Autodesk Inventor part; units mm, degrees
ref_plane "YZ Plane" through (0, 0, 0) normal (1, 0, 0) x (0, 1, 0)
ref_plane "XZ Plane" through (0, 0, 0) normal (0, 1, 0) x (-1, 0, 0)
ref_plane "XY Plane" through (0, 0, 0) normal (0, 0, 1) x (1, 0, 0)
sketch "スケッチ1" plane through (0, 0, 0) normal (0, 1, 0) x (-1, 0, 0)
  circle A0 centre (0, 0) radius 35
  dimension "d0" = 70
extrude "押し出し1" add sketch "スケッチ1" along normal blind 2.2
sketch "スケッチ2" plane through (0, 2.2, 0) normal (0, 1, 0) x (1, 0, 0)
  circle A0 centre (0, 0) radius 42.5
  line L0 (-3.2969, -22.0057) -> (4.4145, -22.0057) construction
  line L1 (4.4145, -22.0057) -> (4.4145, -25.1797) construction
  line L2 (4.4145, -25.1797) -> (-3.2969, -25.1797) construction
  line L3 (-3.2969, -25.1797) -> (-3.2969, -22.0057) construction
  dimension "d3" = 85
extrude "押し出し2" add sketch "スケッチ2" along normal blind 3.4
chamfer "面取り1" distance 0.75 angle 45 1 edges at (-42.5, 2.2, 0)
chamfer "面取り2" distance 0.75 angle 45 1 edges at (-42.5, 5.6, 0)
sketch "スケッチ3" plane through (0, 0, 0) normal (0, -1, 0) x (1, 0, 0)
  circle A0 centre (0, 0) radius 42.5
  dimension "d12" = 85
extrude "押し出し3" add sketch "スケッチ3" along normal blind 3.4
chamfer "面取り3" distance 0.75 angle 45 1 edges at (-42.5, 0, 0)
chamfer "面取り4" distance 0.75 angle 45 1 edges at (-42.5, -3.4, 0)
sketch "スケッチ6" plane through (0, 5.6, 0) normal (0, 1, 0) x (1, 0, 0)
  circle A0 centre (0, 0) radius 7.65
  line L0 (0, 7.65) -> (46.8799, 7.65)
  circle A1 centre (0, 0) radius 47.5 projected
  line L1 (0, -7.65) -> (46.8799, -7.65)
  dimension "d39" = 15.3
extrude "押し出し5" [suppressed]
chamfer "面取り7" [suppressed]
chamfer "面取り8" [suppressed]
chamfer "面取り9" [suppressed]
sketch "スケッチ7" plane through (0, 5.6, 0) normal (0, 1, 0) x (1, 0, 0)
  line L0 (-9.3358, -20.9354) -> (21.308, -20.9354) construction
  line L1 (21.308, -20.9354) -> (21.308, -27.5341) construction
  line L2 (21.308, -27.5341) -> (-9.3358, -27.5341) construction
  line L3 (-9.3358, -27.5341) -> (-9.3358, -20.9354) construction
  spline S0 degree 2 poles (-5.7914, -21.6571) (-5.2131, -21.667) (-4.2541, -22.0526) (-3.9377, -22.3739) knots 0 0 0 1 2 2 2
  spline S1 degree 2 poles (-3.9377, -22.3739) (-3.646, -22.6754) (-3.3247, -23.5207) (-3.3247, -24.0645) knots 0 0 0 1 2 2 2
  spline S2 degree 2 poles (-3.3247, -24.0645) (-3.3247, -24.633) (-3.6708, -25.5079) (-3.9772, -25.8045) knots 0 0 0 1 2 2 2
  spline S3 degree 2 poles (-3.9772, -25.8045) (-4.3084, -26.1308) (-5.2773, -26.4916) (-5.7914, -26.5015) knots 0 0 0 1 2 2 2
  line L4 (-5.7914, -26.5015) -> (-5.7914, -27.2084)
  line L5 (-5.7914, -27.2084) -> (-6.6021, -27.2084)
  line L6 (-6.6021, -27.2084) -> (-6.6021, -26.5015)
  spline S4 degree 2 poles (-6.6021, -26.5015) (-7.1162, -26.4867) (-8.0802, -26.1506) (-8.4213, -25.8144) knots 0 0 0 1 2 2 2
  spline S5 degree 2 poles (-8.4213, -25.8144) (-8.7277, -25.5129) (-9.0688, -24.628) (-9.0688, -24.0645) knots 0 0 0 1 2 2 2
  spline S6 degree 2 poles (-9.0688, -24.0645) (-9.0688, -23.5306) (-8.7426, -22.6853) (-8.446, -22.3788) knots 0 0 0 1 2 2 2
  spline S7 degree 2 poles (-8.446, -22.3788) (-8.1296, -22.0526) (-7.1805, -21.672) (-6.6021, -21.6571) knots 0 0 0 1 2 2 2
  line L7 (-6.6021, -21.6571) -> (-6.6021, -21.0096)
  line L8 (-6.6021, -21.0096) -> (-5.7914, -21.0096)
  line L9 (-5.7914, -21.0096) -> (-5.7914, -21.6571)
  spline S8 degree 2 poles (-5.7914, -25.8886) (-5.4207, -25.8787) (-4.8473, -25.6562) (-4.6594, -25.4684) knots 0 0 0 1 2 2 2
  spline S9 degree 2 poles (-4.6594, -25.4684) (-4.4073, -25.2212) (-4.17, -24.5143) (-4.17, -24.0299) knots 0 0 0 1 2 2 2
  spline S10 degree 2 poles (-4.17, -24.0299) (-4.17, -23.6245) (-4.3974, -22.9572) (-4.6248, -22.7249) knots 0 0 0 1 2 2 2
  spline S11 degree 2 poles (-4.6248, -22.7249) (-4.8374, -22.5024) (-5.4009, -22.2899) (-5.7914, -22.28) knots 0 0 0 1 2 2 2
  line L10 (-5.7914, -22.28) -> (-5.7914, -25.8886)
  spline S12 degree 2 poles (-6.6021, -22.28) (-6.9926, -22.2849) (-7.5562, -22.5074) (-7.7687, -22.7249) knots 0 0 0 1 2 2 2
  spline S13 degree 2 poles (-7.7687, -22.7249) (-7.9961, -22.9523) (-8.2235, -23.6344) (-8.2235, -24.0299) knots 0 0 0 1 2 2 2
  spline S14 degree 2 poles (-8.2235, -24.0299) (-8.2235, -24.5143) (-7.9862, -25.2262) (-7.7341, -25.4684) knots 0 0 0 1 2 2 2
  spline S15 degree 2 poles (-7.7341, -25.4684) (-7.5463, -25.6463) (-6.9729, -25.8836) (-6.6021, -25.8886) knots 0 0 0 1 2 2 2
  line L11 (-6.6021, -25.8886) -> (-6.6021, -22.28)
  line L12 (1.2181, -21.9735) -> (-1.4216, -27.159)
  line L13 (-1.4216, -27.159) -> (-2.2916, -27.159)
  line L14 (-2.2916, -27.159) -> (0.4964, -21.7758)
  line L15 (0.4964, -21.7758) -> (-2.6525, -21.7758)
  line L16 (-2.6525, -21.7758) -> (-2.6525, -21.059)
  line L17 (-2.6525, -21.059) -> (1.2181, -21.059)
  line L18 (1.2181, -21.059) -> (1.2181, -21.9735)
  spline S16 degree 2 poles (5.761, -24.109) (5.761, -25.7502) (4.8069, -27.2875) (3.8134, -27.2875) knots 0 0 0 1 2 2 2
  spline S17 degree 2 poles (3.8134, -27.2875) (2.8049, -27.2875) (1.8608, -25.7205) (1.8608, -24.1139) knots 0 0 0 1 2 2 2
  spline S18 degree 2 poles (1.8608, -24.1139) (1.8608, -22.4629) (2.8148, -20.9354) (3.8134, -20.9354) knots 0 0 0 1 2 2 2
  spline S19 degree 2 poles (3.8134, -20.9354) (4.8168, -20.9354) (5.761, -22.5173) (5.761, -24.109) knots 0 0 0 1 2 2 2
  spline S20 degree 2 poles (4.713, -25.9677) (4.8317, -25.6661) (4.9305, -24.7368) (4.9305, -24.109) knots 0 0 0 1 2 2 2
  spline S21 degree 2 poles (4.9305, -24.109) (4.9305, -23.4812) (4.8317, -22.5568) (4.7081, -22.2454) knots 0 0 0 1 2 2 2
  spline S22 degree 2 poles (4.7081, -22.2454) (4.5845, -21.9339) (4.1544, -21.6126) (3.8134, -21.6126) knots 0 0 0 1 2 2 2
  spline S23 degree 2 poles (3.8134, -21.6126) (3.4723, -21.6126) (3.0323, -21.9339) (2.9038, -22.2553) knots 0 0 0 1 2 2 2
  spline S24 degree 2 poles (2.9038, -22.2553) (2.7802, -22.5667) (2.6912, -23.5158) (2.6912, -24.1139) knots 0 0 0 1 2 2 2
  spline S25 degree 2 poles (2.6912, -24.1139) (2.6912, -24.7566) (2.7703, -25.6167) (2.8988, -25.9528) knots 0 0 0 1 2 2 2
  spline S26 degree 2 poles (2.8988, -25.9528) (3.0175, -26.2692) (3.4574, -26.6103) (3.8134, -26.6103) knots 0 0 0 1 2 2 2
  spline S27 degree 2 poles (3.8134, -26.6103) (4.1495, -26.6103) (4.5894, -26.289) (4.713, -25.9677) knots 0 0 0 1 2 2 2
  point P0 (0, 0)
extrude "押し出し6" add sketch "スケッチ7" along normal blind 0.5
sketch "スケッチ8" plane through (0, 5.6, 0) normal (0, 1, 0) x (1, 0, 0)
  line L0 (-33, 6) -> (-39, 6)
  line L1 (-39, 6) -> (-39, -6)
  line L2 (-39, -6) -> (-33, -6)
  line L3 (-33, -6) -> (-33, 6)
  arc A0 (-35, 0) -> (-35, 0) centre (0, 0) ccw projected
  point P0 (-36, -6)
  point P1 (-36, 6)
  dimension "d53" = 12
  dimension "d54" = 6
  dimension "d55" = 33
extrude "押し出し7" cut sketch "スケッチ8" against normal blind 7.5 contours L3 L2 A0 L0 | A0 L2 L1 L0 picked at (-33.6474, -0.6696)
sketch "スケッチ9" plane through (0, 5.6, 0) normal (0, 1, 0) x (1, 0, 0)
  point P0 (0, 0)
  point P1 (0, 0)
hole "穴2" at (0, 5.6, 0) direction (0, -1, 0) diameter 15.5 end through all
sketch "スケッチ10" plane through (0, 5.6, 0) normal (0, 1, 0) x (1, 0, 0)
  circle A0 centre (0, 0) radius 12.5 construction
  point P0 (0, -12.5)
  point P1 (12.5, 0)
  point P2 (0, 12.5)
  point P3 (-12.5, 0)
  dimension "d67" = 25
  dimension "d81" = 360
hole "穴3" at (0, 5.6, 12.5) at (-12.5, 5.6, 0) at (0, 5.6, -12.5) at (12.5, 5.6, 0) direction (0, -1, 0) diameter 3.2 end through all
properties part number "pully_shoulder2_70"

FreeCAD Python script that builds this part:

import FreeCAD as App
import Part
import Sketcher

V = App.Vector
Q = App.Units.Quantity


def edges_at(feature, points):
    """Names of the edges that pass closest to the given points."""
    edges = feature.Shape.Edges
    near = lambda p: min(range(len(edges)), key=lambda i: edges[i].distToShape(Part.Vertex(*p))[0])
    return sorted({f"Edge{near(p) + 1}" for p in points})


def add_polygon(sketch, points):
    """Adds a closed chain of lines whose ends are joined by coincident constraints."""
    first, n = sketch.GeometryCount, len(points)
    for a, b in zip(points, points[1:] + points[:1]):
        sketch.addGeometry(Part.LineSegment(App.Vector(*a, 0), App.Vector(*b, 0)), False)
    for i in range(n):
        sketch.addConstraint(Sketcher.Constraint("Coincident", first + i, 2, first + (i + 1) % n, 1))

doc = App.newDocument("Part")
body = doc.addObject("PartDesign::Body", "Body")

# Sketch on XZ plane
sketch1 = body.newObject("Sketcher::SketchObject", "Sketch")
sketch1.AttachmentSupport = (doc.getObject("XZ_Plane"), [""])
sketch1.MapMode = "FlatFace"
sketch1.addGeometry(Part.Circle(V(0, 0, 0), V(0, 0, 1), 35), False)
sketch1.addConstraint([
    Sketcher.Constraint("Coincident", 0, 3, -1, 1),
    Sketcher.Constraint("Diameter", 0, Q("70 mm")),
])
pad1 = body.newObject("PartDesign::Pad", "Pad")
pad1.Profile = sketch1
pad1.Length = 2.2
pad1.Reversed = True

# Sketch on XZ plane
sketch2 = body.newObject("Sketcher::SketchObject", "Sketch001")
sketch2.AttachmentSupport = (doc.getObject("XZ_Plane"), [""])
sketch2.MapMode = "FlatFace"
sketch2.AttachmentOffset = App.Placement(V(0, 0, -2.2), App.Rotation())
sketch2.addGeometry(Part.Circle(V(0, 0, 0), V(0, 0, 1), 42), False)
sketch2.addConstraint([
    Sketcher.Constraint("Coincident", 0, 3, -1, 1),
    Sketcher.Constraint("Diameter", 0, Q("85 mm")),
])
pad2 = body.newObject("PartDesign::Pad", "Pad001")
pad2.Profile = sketch2
pad2.Length = 3.4
pad2.Reversed = True
doc.recompute()

chamfer = body.newObject("PartDesign::Chamfer", "Chamfer")
chamfer.Base = (pad2, edges_at(pad2, [(-42.5, 2.2, 0)]))
chamfer.Size = 0.75
doc.recompute()

chamfer2 = body.newObject("PartDesign::Chamfer", "Chamfer001")
chamfer2.Base = (chamfer, edges_at(chamfer, [(-42.5, 5.6, 0)]))
chamfer2.Size = 0.75

# Sketch on XZ plane
sketch3 = body.newObject("Sketcher::SketchObject", "Sketch002")
sketch3.AttachmentSupport = (doc.getObject("XZ_Plane"), [""])
sketch3.MapMode = "FlatFace"
sketch3.addGeometry(Part.Circle(V(0, 0, 0), V(0, 0, 1), 42), False)
sketch3.addConstraint([
    Sketcher.Constraint("Coincident", 0, 3, -1, 1),
    Sketcher.Constraint("Diameter", 0, Q("85 mm")),
])
pad3 = body.newObject("PartDesign::Pad", "Pad002")
pad3.Profile = sketch3
pad3.Length = 3.4
doc.recompute()

chamfer3 = body.newObject("PartDesign::Chamfer", "Chamfer002")
chamfer3.Base = (pad3, edges_at(pad3, [(-42.5, 0, 0)]))
chamfer3.Size = 0.75
doc.recompute()

chamfer4 = body.newObject("PartDesign::Chamfer", "Chamfer003")
chamfer4.Base = (chamfer3, edges_at(chamfer3, [(-42.5, -3.4, 0)]))
chamfer4.Size = 0.75

# Sketch on XZ plane
sketch4 = body.newObject("Sketcher::SketchObject", "Sketch003")
sketch4.AttachmentSupport = (doc.getObject("XZ_Plane"), [""])
sketch4.MapMode = "FlatFace"
sketch4.AttachmentOffset = App.Placement(V(0, 0, -5.6), App.Rotation())
sketch4.addGeometry(Part.BSplineCurve([V(-5.7914, 21.6571, 0), V(-5.2131, 21.667, 0), V(-4.2541, 22.0526, 0), V(-3.9377, 22.3739, 0)], [3, 1, 3], [0, 1, 2], False, 2, [1, 1, 1, 1], False), False)  # 0
sketch4.addGeometry(Part.LineSegment(V(-5.7914, 21.6571, 0), V(-5.7914, 21.0096, 0)), False)  # 1
sketch4.addGeometry(Part.LineSegment(V(-5.7914, 21.0096, 0), V(-6.6021, 21.0096, 0)), False)  # 2
sketch4.addGeometry(Part.LineSegment(V(-6.6021, 21.0096, 0), V(-6.6021, 21.6571, 0)), False)  # 3
sketch4.addGeometry(Part.BSplineCurve([V(-8.446, 22.3788, 0), V(-8.1296, 22.0526, 0), V(-7.1805, 21.672, 0), V(-6.6021, 21.6571, 0)], [3, 1, 3], [0, 1, 2], False, 2, [1, 1, 1, 1], False), False)  # 4
sketch4.addGeometry(Part.BSplineCurve([V(-9.0688, 24.0645, 0), V(-9.0688, 23.5306, 0), V(-8.7426, 22.6853, 0), V(-8.446, 22.3788, 0)], [3, 1, 3], [0, 1, 2], False, 2, [1, 1, 1, 1], False), False)  # 5
sketch4.addGeometry(Part.BSplineCurve([V(-8.4213, 25.8144, 0), V(-8.7277, 25.5129, 0), V(-9.0688, 24.628, 0), V(-9.0688, 24.0645, 0)], [3, 1, 3], [0, 1, 2], False, 2, [1, 1, 1, 1], False), False)  # 6
sketch4.addGeometry(Part.BSplineCurve([V(-6.6021, 26.5015, 0), V(-7.1162, 26.4867, 0), V(-8.0802, 26.1506, 0), V(-8.4213, 25.8144, 0)], [3, 1, 3], [0, 1, 2], False, 2, [1, 1, 1, 1], False), False)  # 7
sketch4.addGeometry(Part.LineSegment(V(-6.6021, 26.5015, 0), V(-6.6021, 27.2084, 0)), False)  # 8
sketch4.addGeometry(Part.LineSegment(V(-6.6021, 27.2084, 0), V(-5.7914, 27.2084, 0)), False)  # 9
sketch4.addGeometry(Part.LineSegment(V(-5.7914, 27.2084, 0), V(-5.7914, 26.5015, 0)), False)  # 10
sketch4.addGeometry(Part.BSplineCurve([V(-3.9772, 25.8045, 0), V(-4.3084, 26.1308, 0), V(-5.2773, 26.4916, 0), V(-5.7914, 26.5015, 0)], [3, 1, 3], [0, 1, 2], False, 2, [1, 1, 1, 1], False), False)  # 11
sketch4.addGeometry(Part.BSplineCurve([V(-3.3247, 24.0645, 0), V(-3.3247, 24.633, 0), V(-3.6708, 25.5079, 0), V(-3.9772, 25.8045, 0)], [3, 1, 3], [0, 1, 2], False, 2, [1, 1, 1, 1], False), False)  # 12
sketch4.addGeometry(Part.BSplineCurve([V(-3.9377, 22.3739, 0), V(-3.646, 22.6754, 0), V(-3.3247, 23.5207, 0), V(-3.3247, 24.0645, 0)], [3, 1, 3], [0, 1, 2], False, 2, [1, 1, 1, 1], False), False)  # 13
sketch4.addGeometry(Part.BSplineCurve([V(-6.6021, 22.28, 0), V(-6.9926, 22.2849, 0), V(-7.5562, 22.5074, 0), V(-7.7687, 22.7249, 0)], [3, 1, 3], [0, 1, 2], False, 2, [1, 1, 1, 1], False), False)  # 14
sketch4.addGeometry(Part.LineSegment(V(-6.6021, 22.28, 0), V(-6.6021, 25.8886, 0)), False)  # 15
sketch4.addGeometry(Part.BSplineCurve([V(-7.7341, 25.4684, 0), V(-7.5463, 25.6463, 0), V(-6.9729, 25.8836, 0), V(-6.6021, 25.8886, 0)], [3, 1, 3], [0, 1, 2], False, 2, [1, 1, 1, 1], False), False)  # 16
sketch4.addGeometry(Part.BSplineCurve([V(-8.2235, 24.0299, 0), V(-8.2235, 24.5143, 0), V(-7.9862, 25.2262, 0), V(-7.7341, 25.4684, 0)], [3, 1, 3], [0, 1, 2], False, 2, [1, 1, 1, 1], False), False)  # 17
sketch4.addGeometry(Part.BSplineCurve([V(-7.7687, 22.7249, 0), V(-7.9961, 22.9523, 0), V(-8.2235, 23.6344, 0), V(-8.2235, 24.0299, 0)], [3, 1, 3], [0, 1, 2], False, 2, [1, 1, 1, 1], False), False)  # 18
sketch4.addGeometry(Part.BSplineCurve([V(-5.7914, 25.8886, 0), V(-5.4207, 25.8787, 0), V(-4.8473, 25.6562, 0), V(-4.6594, 25.4684, 0)], [3, 1, 3], [0, 1, 2], False, 2, [1, 1, 1, 1], False), False)  # 19
sketch4.addGeometry(Part.LineSegment(V(-5.7914, 25.8886, 0), V(-5.7914, 22.28, 0)), False)  # 20
sketch4.addGeometry(Part.BSplineCurve([V(-4.6248, 22.7249, 0), V(-4.8374, 22.5024, 0), V(-5.4009, 22.2899, 0), V(-5.7914, 22.28, 0)], [3, 1, 3], [0, 1, 2], False, 2, [1, 1, 1, 1], False), False)  # 21
sketch4.addGeometry(Part.BSplineCurve([V(-4.17, 24.0299, 0), V(-4.17, 23.6245, 0), V(-4.3974, 22.9572, 0), V(-4.6248, 22.7249, 0)], [3, 1, 3], [0, 1, 2], False, 2, [1, 1, 1, 1], False), False)  # 22
sketch4.addGeometry(Part.BSplineCurve([V(-4.6594, 25.4684, 0), V(-4.4073, 25.2212, 0), V(-4.17, 24.5143, 0), V(-4.17, 24.0299, 0)], [3, 1, 3], [0, 1, 2], False, 2, [1, 1, 1, 1], False), False)  # 23
add_polygon(sketch4, [(-1.4216, 27.159), (1.2181, 21.9735), (1.2181, 21.059), (-2.6525, 21.059), (-2.6525, 21.7758), (0.4964, 21.7758), (-2.2916, 27.159)])  # lines 24-30
sketch4.addGeometry(Part.BSplineCurve([V(5.761, 24.109, 0), V(5.761, 25.7502, 0), V(4.8069, 27.2875, 0), V(3.8134, 27.2875, 0)], [3, 1, 3], [0, 1, 2], False, 2, [1, 1, 1, 1], False), False)  # 31
sketch4.addGeometry(Part.BSplineCurve([V(3.8134, 20.9354, 0), V(4.8168, 20.9354, 0), V(5.761, 22.5173, 0), V(5.761, 24.109, 0)], [3, 1, 3], [0, 1, 2], False, 2, [1, 1, 1, 1], False), False)  # 32
sketch4.addGeometry(Part.BSplineCurve([V(1.8608, 24.1139, 0), V(1.8608, 22.4629, 0), V(2.8148, 20.9354, 0), V(3.8134, 20.9354, 0)], [3, 1, 3], [0, 1, 2], False, 2, [1, 1, 1, 1], False), False)  # 33
sketch4.addGeometry(Part.BSplineCurve([V(3.8134, 27.2875, 0), V(2.8049, 27.2875, 0), V(1.8608, 25.7205, 0), V(1.8608, 24.1139, 0)], [3, 1, 3], [0, 1, 2], False, 2, [1, 1, 1, 1], False), False)  # 34
sketch4.addGeometry(Part.BSplineCurve([V(4.713, 25.9677, 0), V(4.8317, 25.6661, 0), V(4.9305, 24.7368, 0), V(4.9305, 24.109, 0)], [3, 1, 3], [0, 1, 2], False, 2, [1, 1, 1, 1], False), False)  # 35
sketch4.addGeometry(Part.BSplineCurve([V(3.8134, 26.6103, 0), V(4.1495, 26.6103, 0), V(4.5894, 26.289, 0), V(4.713, 25.9677, 0)], [3, 1, 3], [0, 1, 2], False, 2, [1, 1, 1, 1], False), False)  # 36
sketch4.addGeometry(Part.BSplineCurve([V(2.8988, 25.9528, 0), V(3.0175, 26.2692, 0), V(3.4574, 26.6103, 0), V(3.8134, 26.6103, 0)], [3, 1, 3], [0, 1, 2], False, 2, [1, 1, 1, 1], False), False)  # 37
sketch4.addGeometry(Part.BSplineCurve([V(2.6912, 24.1139, 0), V(2.6912, 24.7566, 0), V(2.7703, 25.6167, 0), V(2.8988, 25.9528, 0)], [3, 1, 3], [0, 1, 2], False, 2, [1, 1, 1, 1], False), False)  # 38
sketch4.addGeometry(Part.BSplineCurve([V(2.9038, 22.2553, 0), V(2.7802, 22.5667, 0), V(2.6912, 23.5158, 0), V(2.6912, 24.1139, 0)], [3, 1, 3], [0, 1, 2], False, 2, [1, 1, 1, 1], False), False)  # 39
sketch4.addGeometry(Part.BSplineCurve([V(3.8134, 21.6126, 0), V(3.4723, 21.6126, 0), V(3.0323, 21.9339, 0), V(2.9038, 22.2553, 0)], [3, 1, 3], [0, 1, 2], False, 2, [1, 1, 1, 1], False), False)  # 40
sketch4.addGeometry(Part.BSplineCurve([V(4.7081, 22.2454, 0), V(4.5845, 21.9339, 0), V(4.1544, 21.6126, 0), V(3.8134, 21.6126, 0)], [3, 1, 3], [0, 1, 2], False, 2, [1, 1, 1, 1], False), False)  # 41
sketch4.addGeometry(Part.BSplineCurve([V(4.9305, 24.109, 0), V(4.9305, 23.4812, 0), V(4.8317, 22.5568, 0), V(4.7081, 22.2454, 0)], [3, 1, 3], [0, 1, 2], False, 2, [1, 1, 1, 1], False), False)  # 42
sketch4.addConstraint([
    Sketcher.Constraint("Block", 0),
    Sketcher.Constraint("Block", 4),
    Sketcher.Constraint("Block", 5),
    Sketcher.Constraint("Block", 6),
    Sketcher.Constraint("Block", 7),
    Sketcher.Constraint("Block", 11),
    Sketcher.Constraint("Block", 12),
    Sketcher.Constraint("Block", 13),
    Sketcher.Constraint("Block", 14),
    Sketcher.Constraint("Block", 16),
    Sketcher.Constraint("Block", 17),
    Sketcher.Constraint("Block", 18),
    Sketcher.Constraint("Block", 19),
    Sketcher.Constraint("Block", 21),
    Sketcher.Constraint("Block", 22),
    Sketcher.Constraint("Block", 23),
    Sketcher.Constraint("Block", 31),
    Sketcher.Constraint("Block", 32),
    Sketcher.Constraint("Block", 33),
    Sketcher.Constraint("Block", 34),
    Sketcher.Constraint("Block", 35),
    Sketcher.Constraint("Block", 36),
    Sketcher.Constraint("Block", 37),
    Sketcher.Constraint("Block", 38),
    Sketcher.Constraint("Block", 39),
    Sketcher.Constraint("Block", 40),
    Sketcher.Constraint("Block", 41),
    Sketcher.Constraint("Block", 42),
    Sketcher.Constraint("Coincident", 0, 1, 1, 1),
    Sketcher.Constraint("Coincident", 1, 2, 2, 1),
    Sketcher.Constraint("Coincident", 2, 2, 3, 1),
    Sketcher.Constraint("Coincident", 3, 2, 4, 2),
    Sketcher.Constraint("Coincident", 7, 1, 8, 1),
    Sketcher.Constraint("Coincident", 8, 2, 9, 1),
    Sketcher.Constraint("Coincident", 9, 2, 10, 1),
    Sketcher.Constraint("Coincident", 10, 2, 11, 2),
    Sketcher.Constraint("Coincident", 14, 1, 15, 1),
    Sketcher.Constraint("Coincident", 15, 2, 16, 2),
    Sketcher.Constraint("Coincident", 19, 1, 20, 1),
    Sketcher.Constraint("Coincident", 20, 2, 21, 2),
    Sketcher.Constraint("Vertical", 1),
    Sketcher.Constraint("Horizontal", 2),
    Sketcher.Constraint("Vertical", 3),
    Sketcher.Constraint("Vertical", 8),
    Sketcher.Constraint("Horizontal", 9),
    Sketcher.Constraint("Vertical", 10),
    Sketcher.Constraint("Vertical", 25),
    Sketcher.Constraint("Horizontal", 26),
    Sketcher.Constraint("Vertical", 27),
    Sketcher.Constraint("Horizontal", 28),
    Sketcher.Constraint("Horizontal", 30),
    Sketcher.Constraint("DistanceX", 30, 1, 30, 2, Q("0.87 mm")),
    Sketcher.Constraint("Angle", 29, Q("117.38 deg")),
    Sketcher.Constraint("DistanceX", 28, 1, 28, 2, Q("3.149 mm")),
    Sketcher.Constraint("DistanceY", 8, 1, 8, 2, Q("0.707 mm")),
    Sketcher.Constraint("DistanceX", 26, 2, 26, 1, Q("3.8706 mm")),
    Sketcher.Constraint("DistanceY", 1, 2, 1, 1, Q("0.6475 mm")),
    Sketcher.Constraint("DistanceY", 25, 2, 25, 1, Q("0.9145 mm")),
    Sketcher.Constraint("DistanceY", 27, 1, 27, 2, Q("0.7168 mm")),
    Sketcher.Constraint("DistanceX", -1, 1, 24, 2, Q("1.218 mm")),
    Sketcher.Constraint("DistanceY", -1, 1, 25, 2, Q("21.059 mm")),
    Sketcher.Constraint("DistanceY", -1, 1, 29, 2, Q("27.159 mm")),
])
pad4 = body.newObject("PartDesign::Pad", "Pad003")
pad4.Profile = sketch4
pad4.Length = 0.5
pad4.Reversed = True

# Sketch on XZ plane
sketch5 = body.newObject("Sketcher::SketchObject", "Sketch004")
sketch5.AttachmentSupport = (doc.getObject("XZ_Plane"), [""])
sketch5.MapMode = "FlatFace"
sketch5.AttachmentOffset = App.Placement(V(0, 0, -5.6), App.Rotation())
add_polygon(sketch5, [(-33, 6), (-33, -6), (-39, -6), (-39, 6)])  # lines 0-3
sketch5.addConstraint([
    Sketcher.Constraint("Vertical", 0),
    Sketcher.Constraint("Horizontal", 1),
    Sketcher.Constraint("Vertical", 2),
    Sketcher.Constraint("Horizontal", 3),
    Sketcher.Constraint("DistanceX", 1, 2, 1, 1, Q("6 mm")),
    Sketcher.Constraint("DistanceY", 0, 2, 0, 1, Q("12 mm")),
    Sketcher.Constraint("DistanceX", 0, 2, -1, 1, Q("33 mm")),
    Sketcher.Constraint("DistanceY", 0, 2, -1, 1, Q("6 mm")),
])
pocket1 = body.newObject("PartDesign::Pocket", "Pocket")
pocket1.Profile = sketch5
pocket1.Length = 7.5
pocket1.Reversed = True

# Sketch on XZ plane
sketch6 = body.newObject("Sketcher::SketchObject", "Sketch005")
sketch6.AttachmentSupport = (doc.getObject("XZ_Plane"), [""])
sketch6.MapMode = "FlatFace"
sketch6.AttachmentOffset = App.Placement(V(0, 0, -5.6), App.Rotation())
sketch6.addGeometry(Part.Circle(V(0, 0, 0), V(0, 0, 1), 8), False)
sketch6.addConstraint([
    Sketcher.Constraint("Coincident", 0, 3, -1, 1),
    Sketcher.Constraint("Diameter", 0, Q("15.5 mm")),
])
doc.recompute()
hole = body.newObject("PartDesign::Hole", "Hole")
hole.Profile = sketch6
hole.ThreadType = "None"
hole.Diameter = 15.5
hole.DepthType = "ThroughAll"
hole.Reversed = True

# Sketch on XZ plane
sketch7 = body.newObject("Sketcher::SketchObject", "Sketch006")
sketch7.AttachmentSupport = (doc.getObject("XZ_Plane"), [""])
sketch7.MapMode = "FlatFace"
sketch7.AttachmentOffset = App.Placement(V(0, 0, -5.6), App.Rotation())
sketch7.addGeometry([
    Part.Circle(V(0, 12.5, 0), V(0, 0, 1), 1.6),
    Part.Circle(V(-12.5, 0, 0), V(0, 0, 1), 1.6),
    Part.Circle(V(0, -12.5, 0), V(0, 0, 1), 1.6),
    Part.Circle(V(12.5, 0, 0), V(0, 0, 1), 1.6),
], False)
sketch7.addConstraint([
    Sketcher.Constraint("Equal", 0, 1),
    Sketcher.Constraint("Equal", 1, 2),
    Sketcher.Constraint("Equal", 2, 3),
    Sketcher.Constraint("Symmetric", 0, 3, 2, 3, -1, 1),
    Sketcher.Constraint("Symmetric", 1, 3, 3, 3, -1, 1),
    Sketcher.Constraint("PointOnObject", 0, 3, -2),
    Sketcher.Constraint("PointOnObject", 1, 3, -1),
    Sketcher.Constraint("Diameter", 0, Q("3.2 mm")),
    Sketcher.Constraint("DistanceY", 2, 3, 0, 3, Q("25 mm")),
    Sketcher.Constraint("DistanceX", 1, 3, 3, 3, Q("25 mm")),
])
doc.recompute()
hole2 = body.newObject("PartDesign::Hole", "Hole001")
hole2.Profile = sketch7
hole2.ThreadType = "None"
hole2.Diameter = 3.2
hole2.DepthType = "ThroughAll"
hole2.Reversed = True

doc.recompute()
